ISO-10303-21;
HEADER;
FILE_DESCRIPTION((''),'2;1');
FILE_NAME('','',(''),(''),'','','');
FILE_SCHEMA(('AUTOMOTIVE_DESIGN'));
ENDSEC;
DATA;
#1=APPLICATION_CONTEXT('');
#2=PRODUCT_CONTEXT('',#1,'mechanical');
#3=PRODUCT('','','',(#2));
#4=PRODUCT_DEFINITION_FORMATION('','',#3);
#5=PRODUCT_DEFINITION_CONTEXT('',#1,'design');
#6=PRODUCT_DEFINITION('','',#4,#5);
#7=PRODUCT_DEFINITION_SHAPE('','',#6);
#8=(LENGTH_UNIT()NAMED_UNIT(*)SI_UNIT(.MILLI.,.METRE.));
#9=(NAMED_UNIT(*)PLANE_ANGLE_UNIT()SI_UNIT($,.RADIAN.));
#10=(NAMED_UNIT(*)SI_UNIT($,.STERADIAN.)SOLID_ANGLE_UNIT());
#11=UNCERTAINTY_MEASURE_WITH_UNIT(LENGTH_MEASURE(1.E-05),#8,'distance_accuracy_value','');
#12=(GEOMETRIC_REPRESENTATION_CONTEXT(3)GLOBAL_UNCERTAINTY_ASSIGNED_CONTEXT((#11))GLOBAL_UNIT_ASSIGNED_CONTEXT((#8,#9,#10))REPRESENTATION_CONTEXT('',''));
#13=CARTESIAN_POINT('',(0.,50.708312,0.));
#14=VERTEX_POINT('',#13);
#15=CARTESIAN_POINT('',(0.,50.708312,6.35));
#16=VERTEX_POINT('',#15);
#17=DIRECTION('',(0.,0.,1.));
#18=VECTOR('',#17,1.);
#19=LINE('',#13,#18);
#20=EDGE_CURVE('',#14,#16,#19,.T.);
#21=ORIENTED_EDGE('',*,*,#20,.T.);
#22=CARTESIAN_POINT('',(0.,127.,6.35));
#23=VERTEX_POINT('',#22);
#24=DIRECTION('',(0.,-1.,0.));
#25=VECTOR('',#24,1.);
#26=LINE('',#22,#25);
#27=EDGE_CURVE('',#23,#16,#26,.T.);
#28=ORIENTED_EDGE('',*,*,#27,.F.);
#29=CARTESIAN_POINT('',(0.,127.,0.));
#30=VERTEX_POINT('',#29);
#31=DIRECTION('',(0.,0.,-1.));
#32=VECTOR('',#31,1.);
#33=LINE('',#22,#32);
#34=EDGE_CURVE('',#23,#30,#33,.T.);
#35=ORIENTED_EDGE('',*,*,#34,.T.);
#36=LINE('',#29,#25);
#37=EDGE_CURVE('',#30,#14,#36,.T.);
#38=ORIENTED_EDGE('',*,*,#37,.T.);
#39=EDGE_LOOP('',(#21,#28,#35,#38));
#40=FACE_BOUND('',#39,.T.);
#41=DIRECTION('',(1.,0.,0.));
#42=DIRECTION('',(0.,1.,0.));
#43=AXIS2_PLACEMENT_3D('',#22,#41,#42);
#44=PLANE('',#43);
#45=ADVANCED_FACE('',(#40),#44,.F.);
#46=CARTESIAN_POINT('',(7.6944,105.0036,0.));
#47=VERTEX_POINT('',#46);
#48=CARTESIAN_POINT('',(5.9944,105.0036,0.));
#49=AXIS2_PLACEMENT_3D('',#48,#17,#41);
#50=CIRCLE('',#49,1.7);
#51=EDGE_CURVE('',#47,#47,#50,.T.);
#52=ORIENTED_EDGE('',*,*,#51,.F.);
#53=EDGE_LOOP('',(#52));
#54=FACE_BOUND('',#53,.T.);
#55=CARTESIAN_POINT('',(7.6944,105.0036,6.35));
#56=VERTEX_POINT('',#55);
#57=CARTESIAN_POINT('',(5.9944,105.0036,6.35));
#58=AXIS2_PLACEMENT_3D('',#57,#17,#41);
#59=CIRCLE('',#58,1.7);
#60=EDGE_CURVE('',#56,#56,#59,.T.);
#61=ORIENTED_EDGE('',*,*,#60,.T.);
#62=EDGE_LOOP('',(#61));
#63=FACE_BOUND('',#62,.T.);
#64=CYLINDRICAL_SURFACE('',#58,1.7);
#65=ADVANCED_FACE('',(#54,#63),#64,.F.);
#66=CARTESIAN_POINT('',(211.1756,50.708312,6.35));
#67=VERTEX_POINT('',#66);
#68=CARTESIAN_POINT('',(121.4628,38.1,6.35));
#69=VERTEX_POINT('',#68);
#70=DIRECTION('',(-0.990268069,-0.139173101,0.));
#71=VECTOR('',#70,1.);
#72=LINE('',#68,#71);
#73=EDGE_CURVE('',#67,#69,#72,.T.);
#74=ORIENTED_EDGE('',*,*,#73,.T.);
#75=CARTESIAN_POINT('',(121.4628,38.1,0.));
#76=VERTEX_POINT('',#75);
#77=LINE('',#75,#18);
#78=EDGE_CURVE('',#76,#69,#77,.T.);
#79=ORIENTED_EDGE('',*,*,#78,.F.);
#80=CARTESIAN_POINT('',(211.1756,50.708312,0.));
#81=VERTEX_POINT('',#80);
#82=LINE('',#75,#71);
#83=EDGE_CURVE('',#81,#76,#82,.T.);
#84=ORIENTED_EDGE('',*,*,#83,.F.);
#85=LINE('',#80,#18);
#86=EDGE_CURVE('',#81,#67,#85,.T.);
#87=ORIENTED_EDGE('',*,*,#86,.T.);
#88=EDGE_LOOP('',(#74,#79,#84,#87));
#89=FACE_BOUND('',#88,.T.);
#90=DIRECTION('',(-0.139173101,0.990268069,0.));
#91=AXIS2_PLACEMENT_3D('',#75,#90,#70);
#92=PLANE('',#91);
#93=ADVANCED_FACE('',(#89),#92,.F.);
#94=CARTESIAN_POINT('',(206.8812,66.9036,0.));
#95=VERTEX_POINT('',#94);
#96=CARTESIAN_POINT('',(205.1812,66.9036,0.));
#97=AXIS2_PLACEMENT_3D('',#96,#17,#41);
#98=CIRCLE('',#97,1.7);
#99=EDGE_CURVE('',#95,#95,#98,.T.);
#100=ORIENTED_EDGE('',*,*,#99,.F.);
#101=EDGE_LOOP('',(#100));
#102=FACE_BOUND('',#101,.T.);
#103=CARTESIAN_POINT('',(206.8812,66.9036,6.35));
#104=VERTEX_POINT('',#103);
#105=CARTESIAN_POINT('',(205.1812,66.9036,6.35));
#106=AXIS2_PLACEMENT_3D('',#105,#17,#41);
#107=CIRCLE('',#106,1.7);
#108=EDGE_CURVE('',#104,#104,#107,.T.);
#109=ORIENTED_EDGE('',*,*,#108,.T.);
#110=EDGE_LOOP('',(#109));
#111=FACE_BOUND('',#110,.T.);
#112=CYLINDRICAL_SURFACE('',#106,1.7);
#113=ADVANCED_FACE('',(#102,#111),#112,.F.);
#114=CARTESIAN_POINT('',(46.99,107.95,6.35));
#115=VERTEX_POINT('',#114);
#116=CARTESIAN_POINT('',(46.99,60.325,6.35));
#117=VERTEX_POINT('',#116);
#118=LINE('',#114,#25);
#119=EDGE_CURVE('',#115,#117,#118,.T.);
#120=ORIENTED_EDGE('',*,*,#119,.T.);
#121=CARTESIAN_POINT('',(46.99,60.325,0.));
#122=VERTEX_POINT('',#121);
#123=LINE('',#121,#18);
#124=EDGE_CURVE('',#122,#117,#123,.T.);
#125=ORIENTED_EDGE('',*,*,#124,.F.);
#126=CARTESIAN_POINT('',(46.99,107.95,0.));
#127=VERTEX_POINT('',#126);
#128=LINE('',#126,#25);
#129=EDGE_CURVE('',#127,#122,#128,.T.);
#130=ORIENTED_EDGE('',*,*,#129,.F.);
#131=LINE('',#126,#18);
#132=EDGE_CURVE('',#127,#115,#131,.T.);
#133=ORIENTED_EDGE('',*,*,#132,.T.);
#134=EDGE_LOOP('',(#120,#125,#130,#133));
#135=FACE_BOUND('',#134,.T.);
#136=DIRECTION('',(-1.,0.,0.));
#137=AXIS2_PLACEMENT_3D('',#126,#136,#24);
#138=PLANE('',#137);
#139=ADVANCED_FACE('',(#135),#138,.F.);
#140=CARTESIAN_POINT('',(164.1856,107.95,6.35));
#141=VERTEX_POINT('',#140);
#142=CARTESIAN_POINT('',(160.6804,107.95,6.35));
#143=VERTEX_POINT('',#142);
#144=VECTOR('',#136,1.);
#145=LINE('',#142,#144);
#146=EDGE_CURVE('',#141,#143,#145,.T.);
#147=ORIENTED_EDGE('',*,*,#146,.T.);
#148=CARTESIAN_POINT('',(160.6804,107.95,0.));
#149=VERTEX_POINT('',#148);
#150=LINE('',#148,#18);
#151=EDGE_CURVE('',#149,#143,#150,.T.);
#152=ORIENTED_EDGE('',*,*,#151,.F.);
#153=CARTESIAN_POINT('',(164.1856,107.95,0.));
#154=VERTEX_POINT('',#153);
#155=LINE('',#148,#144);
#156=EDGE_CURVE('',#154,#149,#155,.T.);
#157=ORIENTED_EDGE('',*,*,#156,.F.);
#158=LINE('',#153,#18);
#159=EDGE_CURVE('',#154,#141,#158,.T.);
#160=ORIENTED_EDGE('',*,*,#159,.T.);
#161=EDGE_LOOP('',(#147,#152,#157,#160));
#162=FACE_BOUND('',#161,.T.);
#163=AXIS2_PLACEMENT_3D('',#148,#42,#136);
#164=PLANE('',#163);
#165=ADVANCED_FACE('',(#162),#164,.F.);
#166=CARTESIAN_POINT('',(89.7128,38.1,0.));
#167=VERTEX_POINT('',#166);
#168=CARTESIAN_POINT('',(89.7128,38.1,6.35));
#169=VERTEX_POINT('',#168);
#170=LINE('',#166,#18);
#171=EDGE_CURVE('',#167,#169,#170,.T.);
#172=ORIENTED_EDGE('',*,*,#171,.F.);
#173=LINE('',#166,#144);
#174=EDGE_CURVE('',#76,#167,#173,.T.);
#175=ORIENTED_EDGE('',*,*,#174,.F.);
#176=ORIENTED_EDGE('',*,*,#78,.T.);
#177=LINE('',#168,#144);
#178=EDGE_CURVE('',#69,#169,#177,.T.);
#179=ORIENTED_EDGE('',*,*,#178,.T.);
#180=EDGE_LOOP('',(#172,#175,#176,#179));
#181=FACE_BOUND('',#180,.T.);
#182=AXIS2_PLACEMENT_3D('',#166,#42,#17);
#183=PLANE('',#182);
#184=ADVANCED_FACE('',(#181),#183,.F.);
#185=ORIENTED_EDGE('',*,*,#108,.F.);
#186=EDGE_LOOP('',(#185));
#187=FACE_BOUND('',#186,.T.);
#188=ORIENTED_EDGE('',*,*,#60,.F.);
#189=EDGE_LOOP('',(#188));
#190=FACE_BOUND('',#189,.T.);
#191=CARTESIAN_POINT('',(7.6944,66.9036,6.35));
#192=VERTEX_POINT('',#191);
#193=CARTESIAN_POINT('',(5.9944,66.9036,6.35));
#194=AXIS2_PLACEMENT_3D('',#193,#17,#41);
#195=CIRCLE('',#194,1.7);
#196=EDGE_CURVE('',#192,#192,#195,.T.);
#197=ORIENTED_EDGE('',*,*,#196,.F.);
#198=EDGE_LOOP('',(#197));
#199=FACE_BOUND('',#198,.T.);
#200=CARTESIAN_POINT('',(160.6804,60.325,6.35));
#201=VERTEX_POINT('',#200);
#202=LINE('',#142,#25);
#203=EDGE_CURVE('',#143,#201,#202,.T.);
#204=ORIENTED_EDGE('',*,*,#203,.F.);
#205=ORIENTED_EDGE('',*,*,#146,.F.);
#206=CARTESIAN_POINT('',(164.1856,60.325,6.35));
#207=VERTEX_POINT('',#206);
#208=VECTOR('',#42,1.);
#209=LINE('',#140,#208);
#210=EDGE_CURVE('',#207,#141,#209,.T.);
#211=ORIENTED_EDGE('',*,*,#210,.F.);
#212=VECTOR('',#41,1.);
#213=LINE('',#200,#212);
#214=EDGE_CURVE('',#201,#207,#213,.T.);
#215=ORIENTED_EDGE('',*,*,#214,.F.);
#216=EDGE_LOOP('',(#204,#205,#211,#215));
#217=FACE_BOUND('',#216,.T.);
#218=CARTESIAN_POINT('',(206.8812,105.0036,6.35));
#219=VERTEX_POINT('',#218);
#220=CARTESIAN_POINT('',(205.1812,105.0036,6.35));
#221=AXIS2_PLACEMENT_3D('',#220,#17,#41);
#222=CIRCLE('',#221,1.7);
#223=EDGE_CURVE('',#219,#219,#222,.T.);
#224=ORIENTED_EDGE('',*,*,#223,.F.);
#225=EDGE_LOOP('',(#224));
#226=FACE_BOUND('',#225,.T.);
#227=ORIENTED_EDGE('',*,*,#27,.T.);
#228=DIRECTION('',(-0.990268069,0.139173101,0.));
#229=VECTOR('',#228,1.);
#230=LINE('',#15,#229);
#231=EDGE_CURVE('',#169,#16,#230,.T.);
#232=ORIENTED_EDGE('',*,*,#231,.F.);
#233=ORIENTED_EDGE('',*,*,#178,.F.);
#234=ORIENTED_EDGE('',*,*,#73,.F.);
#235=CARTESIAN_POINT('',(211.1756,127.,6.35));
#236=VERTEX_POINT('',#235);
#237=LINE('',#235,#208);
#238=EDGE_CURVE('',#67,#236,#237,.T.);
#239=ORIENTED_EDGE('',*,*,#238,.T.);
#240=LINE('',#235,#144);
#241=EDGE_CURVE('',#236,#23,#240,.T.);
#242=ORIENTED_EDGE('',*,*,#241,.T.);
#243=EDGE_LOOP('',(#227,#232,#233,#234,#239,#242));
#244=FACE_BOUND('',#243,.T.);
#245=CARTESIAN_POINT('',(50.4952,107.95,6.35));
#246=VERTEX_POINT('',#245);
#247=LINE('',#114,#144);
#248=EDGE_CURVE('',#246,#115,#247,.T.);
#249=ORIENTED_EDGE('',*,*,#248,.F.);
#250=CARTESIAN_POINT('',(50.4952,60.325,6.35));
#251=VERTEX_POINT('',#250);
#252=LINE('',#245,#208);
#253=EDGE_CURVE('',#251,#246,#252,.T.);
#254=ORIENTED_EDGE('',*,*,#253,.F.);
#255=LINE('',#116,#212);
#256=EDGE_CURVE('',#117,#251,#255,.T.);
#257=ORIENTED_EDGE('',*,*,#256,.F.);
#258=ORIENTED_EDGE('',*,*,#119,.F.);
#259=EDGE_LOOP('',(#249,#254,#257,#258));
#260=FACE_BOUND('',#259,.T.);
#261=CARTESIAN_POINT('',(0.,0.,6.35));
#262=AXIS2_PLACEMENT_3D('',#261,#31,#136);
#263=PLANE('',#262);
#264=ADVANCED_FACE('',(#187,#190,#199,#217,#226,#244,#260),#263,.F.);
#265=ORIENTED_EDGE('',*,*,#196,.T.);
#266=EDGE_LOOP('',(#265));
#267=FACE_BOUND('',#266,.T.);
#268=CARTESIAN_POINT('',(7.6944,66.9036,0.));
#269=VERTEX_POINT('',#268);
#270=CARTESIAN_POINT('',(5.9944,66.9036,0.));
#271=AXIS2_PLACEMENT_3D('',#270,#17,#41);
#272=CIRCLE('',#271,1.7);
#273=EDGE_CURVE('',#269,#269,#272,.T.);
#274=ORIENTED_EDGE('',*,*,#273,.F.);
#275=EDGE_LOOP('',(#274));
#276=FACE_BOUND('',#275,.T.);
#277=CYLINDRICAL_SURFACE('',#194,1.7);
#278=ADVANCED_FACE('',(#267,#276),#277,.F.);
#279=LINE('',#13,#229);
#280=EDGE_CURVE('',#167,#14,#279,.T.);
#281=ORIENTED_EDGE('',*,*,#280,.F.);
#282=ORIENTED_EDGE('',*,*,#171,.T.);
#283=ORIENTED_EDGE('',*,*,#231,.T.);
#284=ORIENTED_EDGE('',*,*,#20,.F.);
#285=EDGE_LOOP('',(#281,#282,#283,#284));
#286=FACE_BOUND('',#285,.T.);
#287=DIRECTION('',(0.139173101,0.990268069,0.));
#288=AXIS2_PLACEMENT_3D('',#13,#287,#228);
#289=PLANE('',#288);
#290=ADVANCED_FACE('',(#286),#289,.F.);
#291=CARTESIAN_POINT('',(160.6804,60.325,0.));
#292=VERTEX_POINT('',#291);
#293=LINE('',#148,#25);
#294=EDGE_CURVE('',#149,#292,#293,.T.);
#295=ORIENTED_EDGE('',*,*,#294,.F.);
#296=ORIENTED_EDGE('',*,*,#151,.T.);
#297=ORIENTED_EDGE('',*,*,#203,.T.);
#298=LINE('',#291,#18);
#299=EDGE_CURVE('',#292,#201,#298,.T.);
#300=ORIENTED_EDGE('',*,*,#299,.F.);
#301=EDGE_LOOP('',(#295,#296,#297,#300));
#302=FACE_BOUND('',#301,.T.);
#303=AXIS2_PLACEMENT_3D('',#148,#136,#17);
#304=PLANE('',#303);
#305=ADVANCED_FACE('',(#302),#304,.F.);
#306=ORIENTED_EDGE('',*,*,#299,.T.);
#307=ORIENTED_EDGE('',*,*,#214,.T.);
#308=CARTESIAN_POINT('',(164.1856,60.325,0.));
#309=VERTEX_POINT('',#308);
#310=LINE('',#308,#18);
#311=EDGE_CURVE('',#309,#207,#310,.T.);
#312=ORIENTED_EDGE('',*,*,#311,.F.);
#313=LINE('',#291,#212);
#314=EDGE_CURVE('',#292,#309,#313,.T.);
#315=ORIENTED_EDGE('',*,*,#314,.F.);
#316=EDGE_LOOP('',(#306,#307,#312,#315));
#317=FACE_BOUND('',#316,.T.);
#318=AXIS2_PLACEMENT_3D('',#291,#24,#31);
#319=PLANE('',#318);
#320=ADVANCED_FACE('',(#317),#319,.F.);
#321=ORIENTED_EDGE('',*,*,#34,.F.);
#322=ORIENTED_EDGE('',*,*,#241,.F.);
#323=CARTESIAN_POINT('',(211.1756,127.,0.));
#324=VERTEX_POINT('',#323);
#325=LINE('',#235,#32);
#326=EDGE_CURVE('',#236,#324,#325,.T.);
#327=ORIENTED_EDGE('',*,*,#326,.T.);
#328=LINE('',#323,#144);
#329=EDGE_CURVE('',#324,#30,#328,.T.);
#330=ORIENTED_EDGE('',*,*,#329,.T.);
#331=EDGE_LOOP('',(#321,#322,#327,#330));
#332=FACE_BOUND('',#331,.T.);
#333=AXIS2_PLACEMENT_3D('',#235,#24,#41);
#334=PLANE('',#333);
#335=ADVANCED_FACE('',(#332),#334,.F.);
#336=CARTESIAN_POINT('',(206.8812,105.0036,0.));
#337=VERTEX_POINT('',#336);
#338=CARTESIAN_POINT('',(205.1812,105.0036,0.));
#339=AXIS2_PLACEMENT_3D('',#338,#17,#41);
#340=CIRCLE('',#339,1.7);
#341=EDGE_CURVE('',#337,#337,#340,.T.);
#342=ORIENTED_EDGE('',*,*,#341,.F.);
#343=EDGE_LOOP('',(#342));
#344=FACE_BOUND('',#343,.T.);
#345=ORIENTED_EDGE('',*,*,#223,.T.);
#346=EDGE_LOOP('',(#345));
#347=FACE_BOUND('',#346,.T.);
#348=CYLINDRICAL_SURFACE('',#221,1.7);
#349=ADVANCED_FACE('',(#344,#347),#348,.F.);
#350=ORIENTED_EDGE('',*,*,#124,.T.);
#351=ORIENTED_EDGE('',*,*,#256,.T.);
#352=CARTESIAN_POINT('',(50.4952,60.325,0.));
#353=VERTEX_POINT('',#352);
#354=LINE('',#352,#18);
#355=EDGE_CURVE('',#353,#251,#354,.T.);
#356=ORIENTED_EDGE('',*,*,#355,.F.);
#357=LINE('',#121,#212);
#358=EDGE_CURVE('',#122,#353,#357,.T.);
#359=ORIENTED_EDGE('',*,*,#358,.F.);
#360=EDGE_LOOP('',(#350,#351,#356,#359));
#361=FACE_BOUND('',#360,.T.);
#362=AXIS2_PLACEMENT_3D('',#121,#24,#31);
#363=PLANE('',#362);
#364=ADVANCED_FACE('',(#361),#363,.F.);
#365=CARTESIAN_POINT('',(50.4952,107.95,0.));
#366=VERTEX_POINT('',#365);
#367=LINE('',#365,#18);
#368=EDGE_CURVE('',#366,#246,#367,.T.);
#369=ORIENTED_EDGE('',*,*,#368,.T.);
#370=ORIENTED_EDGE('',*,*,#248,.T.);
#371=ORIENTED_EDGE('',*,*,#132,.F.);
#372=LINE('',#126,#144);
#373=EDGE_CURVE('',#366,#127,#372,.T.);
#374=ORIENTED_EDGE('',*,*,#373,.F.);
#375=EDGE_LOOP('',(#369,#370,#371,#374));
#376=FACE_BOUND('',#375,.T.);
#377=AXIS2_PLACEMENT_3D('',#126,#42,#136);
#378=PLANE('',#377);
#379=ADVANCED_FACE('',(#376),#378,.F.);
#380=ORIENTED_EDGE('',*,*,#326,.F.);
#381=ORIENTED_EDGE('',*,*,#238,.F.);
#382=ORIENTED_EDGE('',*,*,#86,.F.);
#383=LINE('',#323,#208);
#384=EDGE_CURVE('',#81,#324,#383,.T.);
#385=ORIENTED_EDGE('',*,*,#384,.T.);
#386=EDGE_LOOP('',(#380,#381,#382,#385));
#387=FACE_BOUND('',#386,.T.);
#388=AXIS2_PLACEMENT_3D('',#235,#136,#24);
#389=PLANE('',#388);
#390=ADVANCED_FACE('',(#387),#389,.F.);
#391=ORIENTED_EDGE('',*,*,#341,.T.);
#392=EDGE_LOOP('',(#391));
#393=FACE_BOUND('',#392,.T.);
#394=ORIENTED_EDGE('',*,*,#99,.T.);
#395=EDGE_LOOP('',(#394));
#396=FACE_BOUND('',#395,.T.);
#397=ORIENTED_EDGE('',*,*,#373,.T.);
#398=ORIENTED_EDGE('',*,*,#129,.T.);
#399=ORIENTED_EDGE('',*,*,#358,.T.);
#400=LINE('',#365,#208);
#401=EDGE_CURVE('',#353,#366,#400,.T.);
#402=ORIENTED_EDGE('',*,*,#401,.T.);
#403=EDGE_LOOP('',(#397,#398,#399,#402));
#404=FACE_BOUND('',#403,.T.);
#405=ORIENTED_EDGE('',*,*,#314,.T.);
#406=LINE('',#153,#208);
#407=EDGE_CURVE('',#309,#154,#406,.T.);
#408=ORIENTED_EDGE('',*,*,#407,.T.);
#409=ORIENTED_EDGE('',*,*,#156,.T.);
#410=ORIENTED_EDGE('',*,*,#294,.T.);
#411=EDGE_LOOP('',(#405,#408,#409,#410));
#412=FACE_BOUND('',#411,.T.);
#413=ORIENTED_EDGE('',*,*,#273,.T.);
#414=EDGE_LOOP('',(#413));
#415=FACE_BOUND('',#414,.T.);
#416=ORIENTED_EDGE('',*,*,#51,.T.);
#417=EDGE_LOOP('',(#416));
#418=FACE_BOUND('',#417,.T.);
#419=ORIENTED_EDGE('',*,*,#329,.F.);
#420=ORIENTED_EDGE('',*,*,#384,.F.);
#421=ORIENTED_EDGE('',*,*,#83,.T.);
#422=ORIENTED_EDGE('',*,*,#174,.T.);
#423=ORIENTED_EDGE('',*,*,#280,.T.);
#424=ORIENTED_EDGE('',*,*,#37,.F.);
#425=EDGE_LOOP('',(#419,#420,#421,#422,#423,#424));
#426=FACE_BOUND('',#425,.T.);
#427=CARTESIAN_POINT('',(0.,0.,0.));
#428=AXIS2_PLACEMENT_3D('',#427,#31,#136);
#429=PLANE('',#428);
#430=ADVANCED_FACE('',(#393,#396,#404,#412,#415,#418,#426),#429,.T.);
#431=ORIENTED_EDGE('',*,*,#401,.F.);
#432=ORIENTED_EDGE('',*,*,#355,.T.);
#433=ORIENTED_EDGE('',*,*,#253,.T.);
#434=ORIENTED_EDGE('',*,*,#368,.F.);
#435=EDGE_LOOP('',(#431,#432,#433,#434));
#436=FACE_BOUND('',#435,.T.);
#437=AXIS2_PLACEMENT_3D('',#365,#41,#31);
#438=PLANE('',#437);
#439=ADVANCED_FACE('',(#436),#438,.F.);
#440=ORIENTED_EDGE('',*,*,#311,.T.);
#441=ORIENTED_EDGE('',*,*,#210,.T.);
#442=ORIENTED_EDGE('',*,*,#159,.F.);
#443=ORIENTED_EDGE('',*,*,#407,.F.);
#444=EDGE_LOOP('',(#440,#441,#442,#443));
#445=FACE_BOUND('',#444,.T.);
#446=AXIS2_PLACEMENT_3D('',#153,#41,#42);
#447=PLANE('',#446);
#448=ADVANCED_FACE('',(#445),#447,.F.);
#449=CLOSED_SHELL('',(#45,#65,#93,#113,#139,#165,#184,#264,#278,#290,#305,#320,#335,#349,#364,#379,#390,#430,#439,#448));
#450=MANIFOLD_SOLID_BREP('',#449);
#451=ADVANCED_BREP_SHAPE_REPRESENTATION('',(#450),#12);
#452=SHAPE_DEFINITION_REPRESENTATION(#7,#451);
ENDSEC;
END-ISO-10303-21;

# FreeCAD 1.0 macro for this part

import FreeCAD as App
import Part
import Sketcher
Q = App.Units.Quantity


def add_polygon(sketch, points):
    """Adds a closed chain of lines whose ends are joined by coincident constraints."""
    first, n = sketch.GeometryCount, len(points)
    for a, b in zip(points, points[1:] + points[:1]):
        sketch.addGeometry(Part.LineSegment(App.Vector(*a, 0), App.Vector(*b, 0)), False)
    for i in range(n):
        sketch.addConstraint(Sketcher.Constraint("Coincident", first + i, 2, first + (i + 1) % n, 1))

doc = App.newDocument("Part")
body = doc.addObject("PartDesign::Body", "Body")

# Sketch on XY plane
sketch1 = body.newObject("Sketcher::SketchObject", "Sketch")
sketch1.AttachmentSupport = (doc.getObject("XY_Plane"), [""])
sketch1.MapMode = "FlatFace"
add_polygon(sketch1, [(0, 127), (0, 0), (211.1756, 0), (211.1756, 127)])  # lines 0-3
sketch1.addConstraint([
    Sketcher.Constraint("Vertical", 0),
    Sketcher.Constraint("Horizontal", 1),
    Sketcher.Constraint("Vertical", 2),
    Sketcher.Constraint("Horizontal", 3),
    Sketcher.Constraint("Coincident", 0, 2, -1, 1),
    Sketcher.Constraint("DistanceY", 0, 2, 0, 1, Q("5 in")),
    Sketcher.Constraint("DistanceX", 1, 1, 1, 2, Q("8.314 in")),
])
pad1 = body.newObject("PartDesign::Pad", "Pad")
pad1.Profile = sketch1
pad1.Length = Q("0.25 in")

# Sketch on XY plane
sketch2 = body.newObject("Sketcher::SketchObject", "Sketch001")
sketch2.AttachmentSupport = (doc.getObject("XY_Plane"), [""])
sketch2.MapMode = "FlatFace"
sketch2.AttachmentOffset = App.Placement(App.Vector(0, 0, 0.25 * 25.4), App.Rotation())
sketch2.addGeometry([
    Part.Circle(App.Vector(5.9944, 105.0036, 0), App.Vector(0, 0, 1), 1.7),
    Part.Circle(App.Vector(5.9944, 66.9036, 0), App.Vector(0, 0, 1), 1.7),
    Part.Circle(App.Vector(205.1812, 66.9036, 0), App.Vector(0, 0, 1), 1.7),
    Part.Circle(App.Vector(205.1812, 105.0036, 0), App.Vector(0, 0, 1), 1.7),
], False)
sketch2.addConstraint([
    Sketcher.Constraint("Equal", 0, 1),
    Sketcher.Constraint("Equal", 1, 2),
    Sketcher.Constraint("Equal", 2, 3),
    Sketcher.Constraint("Horizontal", 1, 3, 2, 3),
    Sketcher.Constraint("Horizontal", 0, 3, 3, 3),
    Sketcher.Constraint("Vertical", 0, 3, 1, 3),
    Sketcher.Constraint("Vertical", 2, 3, 3, 3),
    Sketcher.Constraint("DistanceY", 1, 3, 0, 3, Q("1.5 in")),
    Sketcher.Constraint("Diameter", 0, 3.4),
    Sketcher.Constraint("DistanceX", -1, 1, 0, 3, Q("0.236 in")),
    Sketcher.Constraint("DistanceY", -1, 1, 0, 3, Q("4.134 in")),
    Sketcher.Constraint("DistanceX", -1, 1, 2, 3, Q("8.078 in")),
])
doc.recompute()
hole = body.newObject("PartDesign::Hole", "Hole")
hole.Profile = sketch2
hole.ThreadType = "None"
hole.Diameter = 3.4
hole.DepthType = "ThroughAll"

# Sketch on XY plane
sketch3 = body.newObject("Sketcher::SketchObject", "Sketch002")
sketch3.AttachmentSupport = (doc.getObject("XY_Plane"), [""])
sketch3.MapMode = "FlatFace"
sketch3.AttachmentOffset = App.Placement(App.Vector(0, 0, 0.25 * 25.4), App.Rotation())
add_polygon(sketch3, [(46.99, 107.95), (46.99, 60.325), (50.4952, 60.325), (50.4952, 107.95)])  # lines 0-3
add_polygon(sketch3, [(160.6804, 107.95), (160.6804, 60.325), (164.1856, 60.325), (164.1856, 107.95)])  # lines 4-7
sketch3.addConstraint([
    Sketcher.Constraint("Vertical", 0),
    Sketcher.Constraint("Horizontal", 1),
    Sketcher.Constraint("Vertical", 2),
    Sketcher.Constraint("Horizontal", 3),
    Sketcher.Constraint("Vertical", 4),
    Sketcher.Constraint("Horizontal", 5),
    Sketcher.Constraint("Vertical", 6),
    Sketcher.Constraint("Horizontal", 7),
    Sketcher.Constraint("Horizontal", 1, 2, 4, 2),
    Sketcher.Constraint("Horizontal", 3, 2, 6, 2),
    Sketcher.Constraint("Equal", 3, 5),
    Sketcher.Constraint("DistanceX", 1, 1, 1, 2, Q("0.138 in")),
    Sketcher.Constraint("DistanceY", 0, 2, 0, 1, Q("1.875 in")),
    Sketcher.Constraint("DistanceX", -1, 1, 0, 2, Q("1.85 in")),
    Sketcher.Constraint("DistanceY", -1, 1, 2, 2, Q("4.25 in")),
    Sketcher.Constraint("DistanceX", -1, 1, 4, 2, Q("6.326 in")),
])
pocket1 = body.newObject("PartDesign::Pocket", "Pocket")
pocket1.Profile = sketch3
pocket1.Type = "ThroughAll"

# Sketch on XY plane
sketch4 = body.newObject("Sketcher::SketchObject", "Sketch003")
sketch4.AttachmentSupport = (doc.getObject("XY_Plane"), [""])
sketch4.MapMode = "FlatFace"
sketch4.AttachmentOffset = App.Placement(App.Vector(0, 0, 0.25 * 25.4), App.Rotation())
add_polygon(sketch4, [(89.7128, 38.1), (0, 50.708312), (0, 0), (211.1756, 0), (211.1756, 50.708312), (121.4628, 38.1)])  # lines 0-5
sketch4.addConstraint([
    Sketcher.Constraint("Vertical", 1),
    Sketcher.Constraint("Horizontal", 2),
    Sketcher.Constraint("Vertical", 3),
    Sketcher.Constraint("Horizontal", 5),
    Sketcher.Constraint("Coincident", 1, 2, -1, 1),
    Sketcher.Constraint("Horizontal", 0, 2, 3, 2),
    Sketcher.Constraint("Equal", 0, 4),
    Sketcher.Constraint("Angle", 0, Q("172 deg")),
    Sketcher.Constraint("DistanceX", 5, 2, 5, 1, Q("1.25 in")),
    Sketcher.Constraint("DistanceY", -1, 1, 4, 2, Q("1.5 in")),
    Sketcher.Constraint("DistanceX", 2, 1, 2, 2, Q("8.314 in")),
])
pocket2 = body.newObject("PartDesign::Pocket", "Pocket001")
pocket2.Profile = sketch4
pocket2.Type = "ThroughAll"

doc.recompute()
